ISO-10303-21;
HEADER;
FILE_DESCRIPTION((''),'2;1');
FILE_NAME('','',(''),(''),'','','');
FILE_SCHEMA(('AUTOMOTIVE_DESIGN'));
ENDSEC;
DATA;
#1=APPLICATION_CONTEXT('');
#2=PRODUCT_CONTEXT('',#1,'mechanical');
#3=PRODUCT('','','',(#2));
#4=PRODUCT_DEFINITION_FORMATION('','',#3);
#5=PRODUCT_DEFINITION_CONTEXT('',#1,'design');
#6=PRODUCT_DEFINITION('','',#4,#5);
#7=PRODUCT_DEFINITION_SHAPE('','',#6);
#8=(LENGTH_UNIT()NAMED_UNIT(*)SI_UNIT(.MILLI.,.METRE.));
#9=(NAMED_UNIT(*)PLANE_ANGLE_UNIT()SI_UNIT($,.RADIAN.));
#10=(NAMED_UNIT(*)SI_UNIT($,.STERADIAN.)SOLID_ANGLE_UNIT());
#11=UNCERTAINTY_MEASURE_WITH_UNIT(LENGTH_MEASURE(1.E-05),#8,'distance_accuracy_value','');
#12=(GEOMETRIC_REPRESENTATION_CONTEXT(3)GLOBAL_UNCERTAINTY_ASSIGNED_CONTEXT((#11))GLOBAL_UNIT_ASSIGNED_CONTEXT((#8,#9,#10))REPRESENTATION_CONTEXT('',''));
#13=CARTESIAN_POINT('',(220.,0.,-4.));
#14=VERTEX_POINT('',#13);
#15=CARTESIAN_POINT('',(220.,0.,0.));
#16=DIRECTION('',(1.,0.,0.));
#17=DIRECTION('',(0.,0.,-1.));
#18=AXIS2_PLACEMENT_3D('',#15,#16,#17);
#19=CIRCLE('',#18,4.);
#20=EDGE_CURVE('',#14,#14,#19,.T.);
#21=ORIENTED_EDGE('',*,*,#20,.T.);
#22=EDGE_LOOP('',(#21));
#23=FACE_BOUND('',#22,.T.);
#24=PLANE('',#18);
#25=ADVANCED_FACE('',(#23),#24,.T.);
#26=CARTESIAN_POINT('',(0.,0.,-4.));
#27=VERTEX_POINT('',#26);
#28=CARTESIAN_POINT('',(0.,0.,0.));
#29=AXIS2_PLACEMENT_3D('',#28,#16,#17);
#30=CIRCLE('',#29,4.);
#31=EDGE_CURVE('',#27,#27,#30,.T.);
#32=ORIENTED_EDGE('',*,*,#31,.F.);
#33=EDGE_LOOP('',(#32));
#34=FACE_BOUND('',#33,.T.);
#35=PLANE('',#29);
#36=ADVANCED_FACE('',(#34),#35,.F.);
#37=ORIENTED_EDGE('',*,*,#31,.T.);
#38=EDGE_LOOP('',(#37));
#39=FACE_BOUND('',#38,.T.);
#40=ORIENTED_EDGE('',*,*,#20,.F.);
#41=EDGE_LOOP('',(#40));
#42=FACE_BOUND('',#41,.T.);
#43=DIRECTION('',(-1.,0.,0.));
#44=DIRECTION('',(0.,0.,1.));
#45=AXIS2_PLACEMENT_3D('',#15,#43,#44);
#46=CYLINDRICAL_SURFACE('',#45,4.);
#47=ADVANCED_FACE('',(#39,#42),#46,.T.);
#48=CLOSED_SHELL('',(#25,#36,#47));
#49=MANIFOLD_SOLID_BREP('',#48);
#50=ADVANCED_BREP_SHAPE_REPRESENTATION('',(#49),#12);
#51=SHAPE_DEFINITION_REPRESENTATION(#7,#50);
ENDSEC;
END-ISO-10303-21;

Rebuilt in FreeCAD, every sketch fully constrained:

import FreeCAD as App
import Part
import Sketcher
from FreeCAD import Vector
Q = App.Units.Quantity

doc = App.newDocument("Part")
body = doc.addObject("PartDesign::Body", "Body")

# Sketch on YZ plane
sketch1 = doc.addObject("Sketcher::SketchObject", "Sketch")
body.addObject(sketch1)
sketch1.AttachmentSupport = (doc.YZ_Plane, [""])
sketch1.MapMode = "FlatFace"
sketch1.addGeometry(Part.Circle(Vector(0, 0, 0), Vector(0, 0, 1), 4), False)
sketch1.addConstraint([
    Sketcher.Constraint("Coincident", 0, 3, -1, 1),
    Sketcher.Constraint("Diameter", 0, Q("8 mm")),
])
pad1 = doc.addObject("PartDesign::Pad", "Pad")
body.addObject(pad1)
pad1.Profile = sketch1
pad1.Length = 220

doc.recompute()
